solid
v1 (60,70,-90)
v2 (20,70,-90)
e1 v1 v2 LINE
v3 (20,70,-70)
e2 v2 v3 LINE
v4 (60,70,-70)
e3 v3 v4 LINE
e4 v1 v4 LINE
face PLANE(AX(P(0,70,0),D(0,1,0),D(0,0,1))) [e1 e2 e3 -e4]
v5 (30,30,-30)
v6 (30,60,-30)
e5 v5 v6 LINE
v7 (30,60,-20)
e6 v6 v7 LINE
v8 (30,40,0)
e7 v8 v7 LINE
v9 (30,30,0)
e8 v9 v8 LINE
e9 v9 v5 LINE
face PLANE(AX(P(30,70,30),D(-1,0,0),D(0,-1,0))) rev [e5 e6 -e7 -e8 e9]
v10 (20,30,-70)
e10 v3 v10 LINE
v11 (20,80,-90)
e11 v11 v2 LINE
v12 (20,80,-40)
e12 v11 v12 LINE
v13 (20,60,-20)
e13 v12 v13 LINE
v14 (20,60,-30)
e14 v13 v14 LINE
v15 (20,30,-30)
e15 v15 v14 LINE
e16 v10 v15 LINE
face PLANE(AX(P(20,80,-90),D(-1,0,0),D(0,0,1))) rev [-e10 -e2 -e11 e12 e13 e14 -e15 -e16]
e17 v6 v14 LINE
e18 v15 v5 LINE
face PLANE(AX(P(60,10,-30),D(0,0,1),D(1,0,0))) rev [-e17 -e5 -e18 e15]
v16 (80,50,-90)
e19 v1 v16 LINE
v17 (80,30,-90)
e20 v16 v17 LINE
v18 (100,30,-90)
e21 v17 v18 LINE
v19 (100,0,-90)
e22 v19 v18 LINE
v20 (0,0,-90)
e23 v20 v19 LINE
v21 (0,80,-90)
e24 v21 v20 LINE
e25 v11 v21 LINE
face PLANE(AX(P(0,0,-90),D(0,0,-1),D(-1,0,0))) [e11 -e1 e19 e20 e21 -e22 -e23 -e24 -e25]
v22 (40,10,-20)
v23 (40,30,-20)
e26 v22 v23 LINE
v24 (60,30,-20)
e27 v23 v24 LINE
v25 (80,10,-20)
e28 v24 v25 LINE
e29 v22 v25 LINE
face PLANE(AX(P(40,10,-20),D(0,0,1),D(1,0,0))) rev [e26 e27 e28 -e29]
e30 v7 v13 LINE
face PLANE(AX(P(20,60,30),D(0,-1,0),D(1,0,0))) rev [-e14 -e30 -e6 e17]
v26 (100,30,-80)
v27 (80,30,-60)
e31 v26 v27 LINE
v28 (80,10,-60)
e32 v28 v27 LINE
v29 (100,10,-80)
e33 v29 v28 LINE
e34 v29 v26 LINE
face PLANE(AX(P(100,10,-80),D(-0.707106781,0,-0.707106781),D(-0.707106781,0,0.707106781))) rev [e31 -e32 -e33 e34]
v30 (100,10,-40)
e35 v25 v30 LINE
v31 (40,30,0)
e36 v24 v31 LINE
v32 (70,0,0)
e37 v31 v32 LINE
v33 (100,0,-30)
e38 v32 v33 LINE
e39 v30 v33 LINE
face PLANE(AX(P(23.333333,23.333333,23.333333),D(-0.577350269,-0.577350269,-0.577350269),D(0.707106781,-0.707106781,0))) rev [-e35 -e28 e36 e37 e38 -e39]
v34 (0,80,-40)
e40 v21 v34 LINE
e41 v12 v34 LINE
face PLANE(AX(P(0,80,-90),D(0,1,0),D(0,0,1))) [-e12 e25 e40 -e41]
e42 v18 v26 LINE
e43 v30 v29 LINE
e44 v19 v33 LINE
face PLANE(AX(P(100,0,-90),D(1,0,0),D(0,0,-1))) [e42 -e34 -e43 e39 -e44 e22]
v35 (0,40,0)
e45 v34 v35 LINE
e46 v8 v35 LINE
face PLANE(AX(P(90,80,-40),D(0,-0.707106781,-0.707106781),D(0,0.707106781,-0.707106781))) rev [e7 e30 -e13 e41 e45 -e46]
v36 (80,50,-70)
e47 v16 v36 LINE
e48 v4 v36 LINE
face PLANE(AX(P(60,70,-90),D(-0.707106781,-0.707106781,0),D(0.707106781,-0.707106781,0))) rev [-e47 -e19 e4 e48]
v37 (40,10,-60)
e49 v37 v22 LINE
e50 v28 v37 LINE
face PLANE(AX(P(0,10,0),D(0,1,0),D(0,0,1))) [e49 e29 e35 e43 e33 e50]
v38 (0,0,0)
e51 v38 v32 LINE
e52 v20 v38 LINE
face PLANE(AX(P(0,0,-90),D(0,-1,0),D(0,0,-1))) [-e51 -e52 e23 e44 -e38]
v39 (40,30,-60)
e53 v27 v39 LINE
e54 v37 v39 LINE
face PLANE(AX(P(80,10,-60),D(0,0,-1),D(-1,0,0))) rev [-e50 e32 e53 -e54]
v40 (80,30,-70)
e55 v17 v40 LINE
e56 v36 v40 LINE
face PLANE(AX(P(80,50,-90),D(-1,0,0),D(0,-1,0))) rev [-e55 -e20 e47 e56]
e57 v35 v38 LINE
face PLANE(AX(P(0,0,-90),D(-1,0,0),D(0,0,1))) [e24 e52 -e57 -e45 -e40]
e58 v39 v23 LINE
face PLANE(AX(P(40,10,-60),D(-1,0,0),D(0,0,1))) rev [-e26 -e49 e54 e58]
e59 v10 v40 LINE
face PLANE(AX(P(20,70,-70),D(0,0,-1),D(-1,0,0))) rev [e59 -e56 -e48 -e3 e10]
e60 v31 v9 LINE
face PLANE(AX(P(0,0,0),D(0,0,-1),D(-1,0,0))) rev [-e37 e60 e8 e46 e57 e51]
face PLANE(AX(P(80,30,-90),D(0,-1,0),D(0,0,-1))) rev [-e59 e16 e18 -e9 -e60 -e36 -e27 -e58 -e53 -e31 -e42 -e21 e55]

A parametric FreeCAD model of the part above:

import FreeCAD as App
import Part
import Sketcher

V = App.Vector
Q = App.Units.Quantity


def add_polygon(sketch, points):
    """Adds a closed chain of lines whose ends are joined by coincident constraints."""
    first, n = sketch.GeometryCount, len(points)
    for a, b in zip(points, points[1:] + points[:1]):
        sketch.addGeometry(Part.LineSegment(App.Vector(*a, 0), App.Vector(*b, 0)), False)
    for i in range(n):
        sketch.addConstraint(Sketcher.Constraint("Coincident", first + i, 2, first + (i + 1) % n, 1))

doc = App.newDocument("Part")
body = doc.addObject("PartDesign::Body", "Body")

# Sketch on XY plane
sketch1 = body.newObject("Sketcher::SketchObject", "Sketch")
sketch1.AttachmentSupport = (doc.getObject("XY_Plane"), [""])
sketch1.MapMode = "FlatFace"
add_polygon(sketch1, [(0, 80), (0, 0), (100, 0), (100, 80)])  # lines 0-3
sketch1.addConstraint([
    Sketcher.Constraint("Vertical", 0),
    Sketcher.Constraint("Horizontal", 1),
    Sketcher.Constraint("Vertical", 2),
    Sketcher.Constraint("Horizontal", 3),
    Sketcher.Constraint("Coincident", 0, 2, -1, 1),
    Sketcher.Constraint("DistanceX", 1, 1, 1, 2, Q("100 mm")),
    Sketcher.Constraint("DistanceY", 0, 2, 0, 1, Q("80 mm")),
])
pad1 = body.newObject("PartDesign::Pad", "Pad")
pad1.Profile = sketch1
pad1.Length = 90
pad1.Reversed = True

# Sketch on XY plane
sketch2 = body.newObject("Sketcher::SketchObject", "Sketch001")
sketch2.AttachmentSupport = (doc.getObject("XY_Plane"), [""])
sketch2.MapMode = "FlatFace"
add_polygon(sketch2, [(20, 80), (20, 70), (60, 70), (80, 50), (80, 30), (100, 30), (100, 80)])  # lines 0-6
sketch2.addConstraint([
    Sketcher.Constraint("Vertical", 0),
    Sketcher.Constraint("Horizontal", 1),
    Sketcher.Constraint("Vertical", 3),
    Sketcher.Constraint("Horizontal", 4),
    Sketcher.Constraint("Vertical", 5),
    Sketcher.Constraint("Horizontal", 6),
    Sketcher.Constraint("Equal", 4, 3),
    Sketcher.Constraint("DistanceX", 1, 1, 1, 2, Q("40 mm")),
    Sketcher.Constraint("DistanceX", 4, 1, 4, 2, Q("20 mm")),
    Sketcher.Constraint("DistanceX", 6, 2, 6, 1, Q("80 mm")),
    Sketcher.Constraint("DistanceY", 0, 2, 0, 1, Q("10 mm")),
    Sketcher.Constraint("DistanceY", 5, 1, 5, 2, Q("50 mm")),
    Sketcher.Constraint("DistanceX", -1, 1, 0, 2, Q("20 mm")),
    Sketcher.Constraint("DistanceY", -1, 1, 0, 2, Q("70 mm")),
])
pocket1 = body.newObject("PartDesign::Pocket", "Pocket")
pocket1.Profile = sketch2
pocket1.Length = 90

# Sketch on XZ plane
sketch3 = body.newObject("Sketcher::SketchObject", "Sketch002")
sketch3.AttachmentSupport = (doc.getObject("XZ_Plane"), [""])
sketch3.MapMode = "FlatFace"
add_polygon(sketch3, [(70, 0), (100, -30), (100, 0)])  # lines 0-2
sketch3.addConstraint([
    Sketcher.Constraint("Vertical", 1),
    Sketcher.Constraint("Horizontal", 2),
    Sketcher.Constraint("PointOnObject", 1, 2, -1),
    Sketcher.Constraint("Equal", 2, 1),
    Sketcher.Constraint("DistanceX", 2, 2, 2, 1, Q("30 mm")),
    Sketcher.Constraint("DistanceX", -1, 1, 0, 2, Q("100 mm")),
])
pocket2 = body.newObject("PartDesign::Pocket", "Pocket001")
pocket2.Profile = sketch3
pocket2.Length = 90

# Sketch on YZ plane
sketch4 = body.newObject("Sketcher::SketchObject", "Sketch003")
sketch4.AttachmentSupport = (doc.getObject("YZ_Plane"), [""])
sketch4.MapMode = "FlatFace"
add_polygon(sketch4, [(80, -40), (40, 0), (80, 0)])  # lines 0-2
sketch4.addConstraint([
    Sketcher.Constraint("Horizontal", 1),
    Sketcher.Constraint("Vertical", 2),
    Sketcher.Constraint("PointOnObject", 0, 2, -1),
    Sketcher.Constraint("Equal", 1, 2),
    Sketcher.Constraint("DistanceX", 1, 1, 1, 2, Q("40 mm")),
    Sketcher.Constraint("DistanceX", -1, 1, 0, 2, Q("40 mm")),
])
pocket3 = body.newObject("PartDesign::Pocket", "Pocket002")
pocket3.Profile = sketch4
pocket3.Length = 90
pocket3.Reversed = True

# Sketch on XZ plane
sketch5 = body.newObject("Sketcher::SketchObject", "Sketch004")
sketch5.AttachmentSupport = (doc.getObject("XZ_Plane"), [""])
sketch5.MapMode = "FlatFace"
sketch5.AttachmentOffset = App.Placement(V(0, 0, -70), App.Rotation())
add_polygon(sketch5, [(20, -90), (20, -30), (60, -30), (60, -90)])  # lines 0-3
sketch5.addConstraint([
    Sketcher.Constraint("Vertical", 0),
    Sketcher.Constraint("Horizontal", 1),
    Sketcher.Constraint("Vertical", 2),
    Sketcher.Constraint("Horizontal", 3),
    Sketcher.Constraint("DistanceX", 1, 1, 1, 2, Q("40 mm")),
    Sketcher.Constraint("DistanceY", 0, 1, 0, 2, Q("60 mm")),
    Sketcher.Constraint("DistanceX", -1, 1, 0, 2, Q("20 mm")),
    Sketcher.Constraint("DistanceY", 0, 2, -1, 1, Q("30 mm")),
])
pocket4 = body.newObject("PartDesign::Pocket", "Pocket003")
pocket4.Profile = sketch5
pocket4.Length = 60
pocket4.Reversed = True

# Sketch on XY plane
sketch6 = body.newObject("Sketcher::SketchObject", "Sketch005")
sketch6.AttachmentSupport = (doc.getObject("XY_Plane"), [""])
sketch6.MapMode = "FlatFace"
sketch6.AttachmentOffset = App.Placement(V(0, 0, -30), App.Rotation())
add_polygon(sketch6, [(60, 70), (60, 40), (30, 40), (30, 70)])  # lines 0-3
sketch6.addConstraint([
    Sketcher.Constraint("Vertical", 0),
    Sketcher.Constraint("Horizontal", 1),
    Sketcher.Constraint("Vertical", 2),
    Sketcher.Constraint("Horizontal", 3),
    Sketcher.Constraint("Equal", 3, 0),
    Sketcher.Constraint("DistanceX", 1, 2, 1, 1, Q("30 mm")),
    Sketcher.Constraint("DistanceX", -1, 1, 0, 2, Q("60 mm")),
    Sketcher.Constraint("DistanceY", -1, 1, 0, 2, Q("40 mm")),
])
pocket5 = body.newObject("PartDesign::Pocket", "Pocket004")
pocket5.Profile = sketch6
pocket5.Length = 60
pocket5.Reversed = True

# Sketch on XY plane
sketch7 = body.newObject("Sketcher::SketchObject", "Sketch006")
sketch7.AttachmentSupport = (doc.getObject("XY_Plane"), [""])
sketch7.MapMode = "FlatFace"
sketch7.AttachmentOffset = App.Placement(V(0, 0, -30), App.Rotation())
add_polygon(sketch7, [(30, 70), (30, 60), (20, 60), (20, 70)])  # lines 0-3
sketch7.addConstraint([
    Sketcher.Constraint("Vertical", 0),
    Sketcher.Constraint("Horizontal", 1),
    Sketcher.Constraint("Vertical", 2),
    Sketcher.Constraint("Horizontal", 3),
    Sketcher.Constraint("Equal", 3, 0),
    Sketcher.Constraint("DistanceX", 1, 2, 1, 1, Q("10 mm")),
    Sketcher.Constraint("DistanceX", -1, 1, 0, 2, Q("30 mm")),
    Sketcher.Constraint("DistanceY", -1, 1, 0, 2, Q("60 mm")),
])
pocket6 = body.newObject("PartDesign::Pocket", "Pocket005")
pocket6.Profile = sketch7
pocket6.Length = 60
pocket6.Reversed = True

# Sketch on XZ plane
sketch8 = body.newObject("Sketcher::SketchObject", "Sketch007")
sketch8.AttachmentSupport = (doc.getObject("XZ_Plane"), [""])
sketch8.MapMode = "FlatFace"
sketch8.AttachmentOffset = App.Placement(V(0, 0, -10), App.Rotation())
add_polygon(sketch8, [(20, -90), (20, -30), (60, -30), (60, -90)])  # lines 0-3
sketch8.addConstraint([
    Sketcher.Constraint("Vertical", 0),
    Sketcher.Constraint("Horizontal", 1),
    Sketcher.Constraint("Vertical", 2),
    Sketcher.Constraint("Horizontal", 3),
    Sketcher.Constraint("DistanceX", 1, 1, 1, 2, Q("40 mm")),
    Sketcher.Constraint("DistanceY", 0, 1, 0, 2, Q("60 mm")),
    Sketcher.Constraint("DistanceX", -1, 1, 0, 2, Q("20 mm")),
    Sketcher.Constraint("DistanceY", 0, 2, -1, 1, Q("30 mm")),
])
pad2 = body.newObject("PartDesign::Pad", "Pad001")
pad2.Profile = sketch8
pad2.Length = 20
pad2.Reversed = True

# Sketch on XZ plane
sketch9 = body.newObject("Sketcher::SketchObject", "Sketch008")
sketch9.AttachmentSupport = (doc.getObject("XZ_Plane"), [""])
sketch9.MapMode = "FlatFace"
sketch9.AttachmentOffset = App.Placement(V(0, 0, -30), App.Rotation())
add_polygon(sketch9, [(20, -90), (20, -70), (60, -70), (60, -90)])  # lines 0-3
sketch9.addConstraint([
    Sketcher.Constraint("Vertical", 0),
    Sketcher.Constraint("Horizontal", 1),
    Sketcher.Constraint("Vertical", 2),
    Sketcher.Constraint("Horizontal", 3),
    Sketcher.Constraint("DistanceX", 1, 1, 1, 2, Q("40 mm")),
    Sketcher.Constraint("DistanceY", 0, 1, 0, 2, Q("20 mm")),
    Sketcher.Constraint("DistanceX", -1, 1, 0, 2, Q("20 mm")),
    Sketcher.Constraint("DistanceY", 0, 2, -1, 1, Q("70 mm")),
])
pad3 = body.newObject("PartDesign::Pad", "Pad002")
pad3.Profile = sketch9
pad3.Length = 40
pad3.Reversed = True

# Sketch on XY plane
sketch10 = body.newObject("Sketcher::SketchObject", "Sketch009")
sketch10.AttachmentSupport = (doc.getObject("XY_Plane"), [""])
sketch10.MapMode = "FlatFace"
sketch10.AttachmentOffset = App.Placement(V(0, 0, -30), App.Rotation())
add_polygon(sketch10, [(60, 40), (60, 30), (30, 30), (30, 40)])  # lines 0-3
sketch10.addConstraint([
    Sketcher.Constraint("Vertical", 0),
    Sketcher.Constraint("Horizontal", 1),
    Sketcher.Constraint("Vertical", 2),
    Sketcher.Constraint("Horizontal", 3),
    Sketcher.Constraint("DistanceX", 1, 2, 1, 1, Q("30 mm")),
    Sketcher.Constraint("DistanceY", 0, 2, 0, 1, Q("10 mm")),
    Sketcher.Constraint("DistanceX", -1, 1, 0, 2, Q("60 mm")),
    Sketcher.Constraint("DistanceY", -1, 1, 0, 2, Q("30 mm")),
])
pocket7 = body.newObject("PartDesign::Pocket", "Pocket006")
pocket7.Profile = sketch10
pocket7.Length = 40
pocket7.Reversed = True

# Sketch on YZ plane
sketch11 = body.newObject("Sketcher::SketchObject", "Sketch010")
sketch11.AttachmentSupport = (doc.getObject("YZ_Plane"), [""])
sketch11.MapMode = "FlatFace"
sketch11.AttachmentOffset = App.Placement(V(0, 0, 60), App.Rotation())
add_polygon(sketch11, [(70, -70), (30, -70), (30, 0), (40, 0), (70, -30)])  # lines 0-4
sketch11.addConstraint([
    Sketcher.Constraint("Horizontal", 0),
    Sketcher.Constraint("Vertical", 1),
    Sketcher.Constraint("Horizontal", 2),
    Sketcher.Constraint("Vertical", 4),
    Sketcher.Constraint("PointOnObject", 1, 2, -1),
    Sketcher.Constraint("Equal", 0, 4),
    Sketcher.Constraint("DistanceX", 0, 2, 0, 1, Q("40 mm")),
    Sketcher.Constraint("DistanceX", 2, 1, 2, 2, Q("10 mm")),
    Sketcher.Constraint("DistanceY", 1, 1, 1, 2, Q("70 mm")),
    Sketcher.Constraint("DistanceX", -1, 1, 0, 2, Q("30 mm")),
])
pocket8 = body.newObject("PartDesign::Pocket", "Pocket007")
pocket8.Profile = sketch11
pocket8.Length = 40
pocket8.Reversed = True

# Sketch on XZ plane
sketch12 = body.newObject("Sketcher::SketchObject", "Sketch011")
sketch12.AttachmentSupport = (doc.getObject("XZ_Plane"), [""])
sketch12.MapMode = "FlatFace"
sketch12.AttachmentOffset = App.Placement(V(0, 0, -30), App.Rotation())
add_polygon(sketch12, [(100, -80), (80, -60), (40, -60), (40, -20), (80, -20), (100, -40)])  # lines 0-5
sketch12.addConstraint([
    Sketcher.Constraint("Horizontal", 1),
    Sketcher.Constraint("Vertical", 2),
    Sketcher.Constraint("Horizontal", 3),
    Sketcher.Constraint("Vertical", 5),
    Sketcher.Constraint("Parallel", 0, 4),
    Sketcher.Constraint("Vertical", 0, 2, 3, 2),
    Sketcher.Constraint("Equal", 3, 2),
    Sketcher.Constraint("DistanceX", 1, 2, 1, 1, Q("40 mm")),
    Sketcher.Constraint("Angle", 0, Q("135 deg")),
    Sketcher.Constraint("DistanceX", -1, 1, 0, 2, Q("80 mm")),
    Sketcher.Constraint("DistanceY", 0, 2, -1, 1, Q("60 mm")),
    Sketcher.Constraint("DistanceX", -1, 1, 4, 2, Q("100 mm")),
])
pocket9 = body.newObject("PartDesign::Pocket", "Pocket008")
pocket9.Profile = sketch12
pocket9.Length = 20
pocket9.Reversed = True

# Sketch on XY plane
sketch13 = body.newObject("Sketcher::SketchObject", "Sketch012")
sketch13.AttachmentSupport = (doc.getObject("XY_Plane"), [""])
sketch13.MapMode = "FlatFace"
sketch13.AttachmentOffset = App.Placement(V(0, 0, -50), App.Rotation())
add_polygon(sketch13, [(80, 30), (80, 10), (100, 10), (100, 30)])  # lines 0-3
sketch13.addConstraint([
    Sketcher.Constraint("Vertical", 0),
    Sketcher.Constraint("Horizontal", 1),
    Sketcher.Constraint("Vertical", 2),
    Sketcher.Constraint("Horizontal", 3),
    Sketcher.Constraint("Equal", 3, 0),
    Sketcher.Constraint("DistanceX", 1, 1, 1, 2, Q("20 mm")),
    Sketcher.Constraint("DistanceX", -1, 1, 0, 2, Q("80 mm")),
    Sketcher.Constraint("DistanceY", -1, 1, 0, 2, Q("10 mm")),
])
pocket10 = body.newObject("PartDesign::Pocket", "Pocket009")
pocket10.Profile = sketch13
pocket10.Length = 84
pocket10.Reversed = True

# Sketch on XY plane
sketch14 = body.newObject("Sketcher::SketchObject", "Sketch013")
sketch14.AttachmentSupport = (doc.getObject("XY_Plane"), [""])
sketch14.MapMode = "FlatFace"
sketch14.AttachmentOffset = App.Placement(V(0, 0, -10), App.Rotation())
add_polygon(sketch14, [(60, 30), (80, 10), (80, 30)])  # lines 0-2
sketch14.addConstraint([
    Sketcher.Constraint("Vertical", 1),
    Sketcher.Constraint("Horizontal", 2),
    Sketcher.Constraint("Equal", 2, 1),
    Sketcher.Constraint("DistanceX", 2, 2, 2, 1, Q("20 mm")),
    Sketcher.Constraint("DistanceX", -1, 1, 0, 2, Q("80 mm")),
    Sketcher.Constraint("DistanceY", -1, 1, 0, 2, Q("10 mm")),
])
pocket11 = body.newObject("PartDesign::Pocket", "Pocket010")
pocket11.Profile = sketch14
pocket11.Length = 20
pocket11.Reversed = True

# Sketch on XY plane
sketch15 = body.newObject("Sketcher::SketchObject", "Sketch014")
sketch15.AttachmentSupport = (doc.getObject("XY_Plane"), [""])
sketch15.MapMode = "FlatFace"
sketch15.AttachmentOffset = App.Placement(V(0, 0, -10), App.Rotation())
add_polygon(sketch15, [(80, 30), (60, 30), (80, 10)])  # lines 0-2
sketch15.addConstraint([
    Sketcher.Constraint("Horizontal", 0),
    Sketcher.Constraint("Vertical", 2),
    Sketcher.Constraint("Equal", 0, 2),
    Sketcher.Constraint("DistanceX", 0, 2, 0, 1, Q("20 mm")),
    Sketcher.Constraint("DistanceX", -1, 1, 0, 2, Q("60 mm")),
    Sketcher.Constraint("DistanceY", -1, 1, 0, 2, Q("30 mm")),
])
pocket12 = body.newObject("PartDesign::Pocket", "Pocket011")
pocket12.Profile = sketch15
pocket12.Length = 10

# Sketch on an angled plane
sketch16 = body.newObject("Sketcher::SketchObject", "Sketch015")
sketch16.Placement = App.Placement(V(23.333333, 23.333333, 23.333333), App.Rotation(V(0.40824829, 0.40824829, -0.816496581), V(-0.707106781, 0.707106781, 0), V(0.577350269, 0.577350269, 0.577350269), "ZXY"))
add_polygon(sketch16, [(53, -21), (29, -7), (29, -49), (53, -49)])  # lines 0-3
sketch16.addConstraint([
    Sketcher.Constraint("Vertical", 1),
    Sketcher.Constraint("Horizontal", 2),
    Sketcher.Constraint("Vertical", 3),
    Sketcher.Constraint("Angle", 0, Q("150 deg")),
    Sketcher.Constraint("DistanceY", 3, 1, 3, 2, Q("28.284271 mm")),
    Sketcher.Constraint("Distance", 0, Q("28.284271 mm")),
    Sketcher.Constraint("DistanceX", -1, 1, 0, 2, Q("28.57738 mm")),
    Sketcher.Constraint("DistanceY", 0, 2, -1, 1, Q("7.071068 mm")),
])
pocket13 = body.newObject("PartDesign::Pocket", "Pocket012")
pocket13.Profile = sketch16
pocket13.Length = 77
pocket13.Reversed = True

# Sketch on an angled plane
sketch17 = body.newObject("Sketcher::SketchObject", "Sketch016")
sketch17.Placement = App.Placement(V(35, -35, 0), App.Rotation(V(0, 0, 1), V(0.707106781, 0.707106781, 0), V(-0.707106781, 0.707106781, 0), "ZXY"))
add_polygon(sketch17, [(-10, 64), (-20, 64), (0, 49)])  # lines 0-2
sketch17.addConstraint([
    Sketcher.Constraint("Horizontal", 0),
    Sketcher.Constraint("PointOnObject", 1, 2, -2),
    Sketcher.Constraint("DistanceX", 0, 2, 0, 1, Q("10 mm")),
    Sketcher.Constraint("DistanceX", 0, 2, -1, 1, Q("20 mm")),
    Sketcher.Constraint("Distance", 2, Q("17.320508 mm")),
    Sketcher.Constraint("DistanceY", -1, 1, 0, 2, Q("63.63961 mm")),
])
pocket14 = body.newObject("PartDesign::Pocket", "Pocket013")
pocket14.Profile = sketch17
pocket14.Length = 77

# Sketch on an angled plane
sketch18 = body.newObject("Sketcher::SketchObject", "Sketch017")
sketch18.Placement = App.Placement(V(45, 45, 0), App.Rotation(V(0, 0, 1), V(-0.707106781, 0.707106781, 0), V(-0.707106781, -0.707106781, 0), "ZXY"))
add_polygon(sketch18, [(-10, -49), (-20, -49), (-20, -64)])  # lines 0-2
sketch18.addConstraint([
    Sketcher.Constraint("Horizontal", 0),
    Sketcher.Constraint("Vertical", 1),
    Sketcher.Constraint("DistanceX", 0, 2, 0, 1, Q("10 mm")),
    Sketcher.Constraint("DistanceX", 0, 2, -1, 1, Q("20 mm")),
    Sketcher.Constraint("Distance", 2, Q("17.320508 mm")),
    Sketcher.Constraint("DistanceY", 1, 2, -1, 1, Q("63.63961 mm")),
])
pocket15 = body.newObject("PartDesign::Pocket", "Pocket014")
pocket15.Profile = sketch18
pocket15.Length = 77

# Sketch on an angled plane
sketch19 = body.newObject("Sketcher::SketchObject", "Sketch018")
sketch19.Placement = App.Placement(V(23.333333, 23.333333, 23.333333), App.Rotation(V(-0.816496581, 0.40824829, 0.40824829), V(0, 0.707106781, -0.707106781), V(-0.577350269, -0.577350269, -0.577350269), "ZXY"))
add_polygon(sketch19, [(-69, 21), (-94, 35), (-94, 21), (-82, 14)])  # lines 0-3
sketch19.addConstraint([
    Sketcher.Constraint("Vertical", 1),
    Sketcher.Constraint("Parallel", 0, 2),
    Sketcher.Constraint("Horizontal", 1, 2, 3, 2),
    Sketcher.Constraint("Equal", 2, 3),
    Sketcher.Constraint("Angle", 0, Q("150 deg")),
    Sketcher.Constraint("Distance", 0, Q("28.284271 mm")),
    Sketcher.Constraint("DistanceY", -1, 1, 0, 2, Q("35.355339 mm")),
    Sketcher.Constraint("DistanceX", 2, 2, -1, 1, Q("81.649658 mm")),
])
pocket16 = body.newObject("PartDesign::Pocket", "Pocket015")
pocket16.Profile = sketch19
pocket16.Length = 77

doc.recompute()
